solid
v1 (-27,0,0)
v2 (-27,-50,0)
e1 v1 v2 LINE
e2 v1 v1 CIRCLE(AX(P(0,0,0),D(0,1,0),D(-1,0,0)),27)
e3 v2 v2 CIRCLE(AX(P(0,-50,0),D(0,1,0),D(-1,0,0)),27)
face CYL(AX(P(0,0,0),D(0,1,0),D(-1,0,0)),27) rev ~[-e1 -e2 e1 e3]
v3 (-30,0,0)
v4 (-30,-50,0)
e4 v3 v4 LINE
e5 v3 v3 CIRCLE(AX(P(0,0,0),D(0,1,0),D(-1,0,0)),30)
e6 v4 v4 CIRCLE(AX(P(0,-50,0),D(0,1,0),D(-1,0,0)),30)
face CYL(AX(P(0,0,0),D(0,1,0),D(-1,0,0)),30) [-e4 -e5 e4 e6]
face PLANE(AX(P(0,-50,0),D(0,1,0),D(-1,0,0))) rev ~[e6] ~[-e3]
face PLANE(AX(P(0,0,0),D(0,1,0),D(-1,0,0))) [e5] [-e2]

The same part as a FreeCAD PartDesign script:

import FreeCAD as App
import Part
import Sketcher
from FreeCAD import Vector

doc = App.newDocument("Part")
body = doc.addObject("PartDesign::Body", "Body")

# Sketch on XZ plane
sketch1 = body.newObject("Sketcher::SketchObject", "Sketch")
sketch1.AttachmentSupport = (doc.getObject("XZ_Plane"), [""])
sketch1.MapMode = "FlatFace"
sketch1.addGeometry([
    Part.Circle(Vector(0, 0, 0), Vector(0, 0, 1), 30),
    Part.Circle(Vector(0, 0, 0), Vector(0, 0, 1), 27),
], False)
sketch1.addConstraint([
    Sketcher.Constraint("Coincident", 0, 3, -1, 1),
    Sketcher.Constraint("Coincident", 1, 3, -1, 1),
    Sketcher.Constraint("Diameter", 0, 60.0),
    Sketcher.Constraint("Diameter", 1, 54.0),
])
pad1 = body.newObject("PartDesign::Pad", "Pad")
pad1.Profile = sketch1
pad1.Length = 50

doc.recompute()
